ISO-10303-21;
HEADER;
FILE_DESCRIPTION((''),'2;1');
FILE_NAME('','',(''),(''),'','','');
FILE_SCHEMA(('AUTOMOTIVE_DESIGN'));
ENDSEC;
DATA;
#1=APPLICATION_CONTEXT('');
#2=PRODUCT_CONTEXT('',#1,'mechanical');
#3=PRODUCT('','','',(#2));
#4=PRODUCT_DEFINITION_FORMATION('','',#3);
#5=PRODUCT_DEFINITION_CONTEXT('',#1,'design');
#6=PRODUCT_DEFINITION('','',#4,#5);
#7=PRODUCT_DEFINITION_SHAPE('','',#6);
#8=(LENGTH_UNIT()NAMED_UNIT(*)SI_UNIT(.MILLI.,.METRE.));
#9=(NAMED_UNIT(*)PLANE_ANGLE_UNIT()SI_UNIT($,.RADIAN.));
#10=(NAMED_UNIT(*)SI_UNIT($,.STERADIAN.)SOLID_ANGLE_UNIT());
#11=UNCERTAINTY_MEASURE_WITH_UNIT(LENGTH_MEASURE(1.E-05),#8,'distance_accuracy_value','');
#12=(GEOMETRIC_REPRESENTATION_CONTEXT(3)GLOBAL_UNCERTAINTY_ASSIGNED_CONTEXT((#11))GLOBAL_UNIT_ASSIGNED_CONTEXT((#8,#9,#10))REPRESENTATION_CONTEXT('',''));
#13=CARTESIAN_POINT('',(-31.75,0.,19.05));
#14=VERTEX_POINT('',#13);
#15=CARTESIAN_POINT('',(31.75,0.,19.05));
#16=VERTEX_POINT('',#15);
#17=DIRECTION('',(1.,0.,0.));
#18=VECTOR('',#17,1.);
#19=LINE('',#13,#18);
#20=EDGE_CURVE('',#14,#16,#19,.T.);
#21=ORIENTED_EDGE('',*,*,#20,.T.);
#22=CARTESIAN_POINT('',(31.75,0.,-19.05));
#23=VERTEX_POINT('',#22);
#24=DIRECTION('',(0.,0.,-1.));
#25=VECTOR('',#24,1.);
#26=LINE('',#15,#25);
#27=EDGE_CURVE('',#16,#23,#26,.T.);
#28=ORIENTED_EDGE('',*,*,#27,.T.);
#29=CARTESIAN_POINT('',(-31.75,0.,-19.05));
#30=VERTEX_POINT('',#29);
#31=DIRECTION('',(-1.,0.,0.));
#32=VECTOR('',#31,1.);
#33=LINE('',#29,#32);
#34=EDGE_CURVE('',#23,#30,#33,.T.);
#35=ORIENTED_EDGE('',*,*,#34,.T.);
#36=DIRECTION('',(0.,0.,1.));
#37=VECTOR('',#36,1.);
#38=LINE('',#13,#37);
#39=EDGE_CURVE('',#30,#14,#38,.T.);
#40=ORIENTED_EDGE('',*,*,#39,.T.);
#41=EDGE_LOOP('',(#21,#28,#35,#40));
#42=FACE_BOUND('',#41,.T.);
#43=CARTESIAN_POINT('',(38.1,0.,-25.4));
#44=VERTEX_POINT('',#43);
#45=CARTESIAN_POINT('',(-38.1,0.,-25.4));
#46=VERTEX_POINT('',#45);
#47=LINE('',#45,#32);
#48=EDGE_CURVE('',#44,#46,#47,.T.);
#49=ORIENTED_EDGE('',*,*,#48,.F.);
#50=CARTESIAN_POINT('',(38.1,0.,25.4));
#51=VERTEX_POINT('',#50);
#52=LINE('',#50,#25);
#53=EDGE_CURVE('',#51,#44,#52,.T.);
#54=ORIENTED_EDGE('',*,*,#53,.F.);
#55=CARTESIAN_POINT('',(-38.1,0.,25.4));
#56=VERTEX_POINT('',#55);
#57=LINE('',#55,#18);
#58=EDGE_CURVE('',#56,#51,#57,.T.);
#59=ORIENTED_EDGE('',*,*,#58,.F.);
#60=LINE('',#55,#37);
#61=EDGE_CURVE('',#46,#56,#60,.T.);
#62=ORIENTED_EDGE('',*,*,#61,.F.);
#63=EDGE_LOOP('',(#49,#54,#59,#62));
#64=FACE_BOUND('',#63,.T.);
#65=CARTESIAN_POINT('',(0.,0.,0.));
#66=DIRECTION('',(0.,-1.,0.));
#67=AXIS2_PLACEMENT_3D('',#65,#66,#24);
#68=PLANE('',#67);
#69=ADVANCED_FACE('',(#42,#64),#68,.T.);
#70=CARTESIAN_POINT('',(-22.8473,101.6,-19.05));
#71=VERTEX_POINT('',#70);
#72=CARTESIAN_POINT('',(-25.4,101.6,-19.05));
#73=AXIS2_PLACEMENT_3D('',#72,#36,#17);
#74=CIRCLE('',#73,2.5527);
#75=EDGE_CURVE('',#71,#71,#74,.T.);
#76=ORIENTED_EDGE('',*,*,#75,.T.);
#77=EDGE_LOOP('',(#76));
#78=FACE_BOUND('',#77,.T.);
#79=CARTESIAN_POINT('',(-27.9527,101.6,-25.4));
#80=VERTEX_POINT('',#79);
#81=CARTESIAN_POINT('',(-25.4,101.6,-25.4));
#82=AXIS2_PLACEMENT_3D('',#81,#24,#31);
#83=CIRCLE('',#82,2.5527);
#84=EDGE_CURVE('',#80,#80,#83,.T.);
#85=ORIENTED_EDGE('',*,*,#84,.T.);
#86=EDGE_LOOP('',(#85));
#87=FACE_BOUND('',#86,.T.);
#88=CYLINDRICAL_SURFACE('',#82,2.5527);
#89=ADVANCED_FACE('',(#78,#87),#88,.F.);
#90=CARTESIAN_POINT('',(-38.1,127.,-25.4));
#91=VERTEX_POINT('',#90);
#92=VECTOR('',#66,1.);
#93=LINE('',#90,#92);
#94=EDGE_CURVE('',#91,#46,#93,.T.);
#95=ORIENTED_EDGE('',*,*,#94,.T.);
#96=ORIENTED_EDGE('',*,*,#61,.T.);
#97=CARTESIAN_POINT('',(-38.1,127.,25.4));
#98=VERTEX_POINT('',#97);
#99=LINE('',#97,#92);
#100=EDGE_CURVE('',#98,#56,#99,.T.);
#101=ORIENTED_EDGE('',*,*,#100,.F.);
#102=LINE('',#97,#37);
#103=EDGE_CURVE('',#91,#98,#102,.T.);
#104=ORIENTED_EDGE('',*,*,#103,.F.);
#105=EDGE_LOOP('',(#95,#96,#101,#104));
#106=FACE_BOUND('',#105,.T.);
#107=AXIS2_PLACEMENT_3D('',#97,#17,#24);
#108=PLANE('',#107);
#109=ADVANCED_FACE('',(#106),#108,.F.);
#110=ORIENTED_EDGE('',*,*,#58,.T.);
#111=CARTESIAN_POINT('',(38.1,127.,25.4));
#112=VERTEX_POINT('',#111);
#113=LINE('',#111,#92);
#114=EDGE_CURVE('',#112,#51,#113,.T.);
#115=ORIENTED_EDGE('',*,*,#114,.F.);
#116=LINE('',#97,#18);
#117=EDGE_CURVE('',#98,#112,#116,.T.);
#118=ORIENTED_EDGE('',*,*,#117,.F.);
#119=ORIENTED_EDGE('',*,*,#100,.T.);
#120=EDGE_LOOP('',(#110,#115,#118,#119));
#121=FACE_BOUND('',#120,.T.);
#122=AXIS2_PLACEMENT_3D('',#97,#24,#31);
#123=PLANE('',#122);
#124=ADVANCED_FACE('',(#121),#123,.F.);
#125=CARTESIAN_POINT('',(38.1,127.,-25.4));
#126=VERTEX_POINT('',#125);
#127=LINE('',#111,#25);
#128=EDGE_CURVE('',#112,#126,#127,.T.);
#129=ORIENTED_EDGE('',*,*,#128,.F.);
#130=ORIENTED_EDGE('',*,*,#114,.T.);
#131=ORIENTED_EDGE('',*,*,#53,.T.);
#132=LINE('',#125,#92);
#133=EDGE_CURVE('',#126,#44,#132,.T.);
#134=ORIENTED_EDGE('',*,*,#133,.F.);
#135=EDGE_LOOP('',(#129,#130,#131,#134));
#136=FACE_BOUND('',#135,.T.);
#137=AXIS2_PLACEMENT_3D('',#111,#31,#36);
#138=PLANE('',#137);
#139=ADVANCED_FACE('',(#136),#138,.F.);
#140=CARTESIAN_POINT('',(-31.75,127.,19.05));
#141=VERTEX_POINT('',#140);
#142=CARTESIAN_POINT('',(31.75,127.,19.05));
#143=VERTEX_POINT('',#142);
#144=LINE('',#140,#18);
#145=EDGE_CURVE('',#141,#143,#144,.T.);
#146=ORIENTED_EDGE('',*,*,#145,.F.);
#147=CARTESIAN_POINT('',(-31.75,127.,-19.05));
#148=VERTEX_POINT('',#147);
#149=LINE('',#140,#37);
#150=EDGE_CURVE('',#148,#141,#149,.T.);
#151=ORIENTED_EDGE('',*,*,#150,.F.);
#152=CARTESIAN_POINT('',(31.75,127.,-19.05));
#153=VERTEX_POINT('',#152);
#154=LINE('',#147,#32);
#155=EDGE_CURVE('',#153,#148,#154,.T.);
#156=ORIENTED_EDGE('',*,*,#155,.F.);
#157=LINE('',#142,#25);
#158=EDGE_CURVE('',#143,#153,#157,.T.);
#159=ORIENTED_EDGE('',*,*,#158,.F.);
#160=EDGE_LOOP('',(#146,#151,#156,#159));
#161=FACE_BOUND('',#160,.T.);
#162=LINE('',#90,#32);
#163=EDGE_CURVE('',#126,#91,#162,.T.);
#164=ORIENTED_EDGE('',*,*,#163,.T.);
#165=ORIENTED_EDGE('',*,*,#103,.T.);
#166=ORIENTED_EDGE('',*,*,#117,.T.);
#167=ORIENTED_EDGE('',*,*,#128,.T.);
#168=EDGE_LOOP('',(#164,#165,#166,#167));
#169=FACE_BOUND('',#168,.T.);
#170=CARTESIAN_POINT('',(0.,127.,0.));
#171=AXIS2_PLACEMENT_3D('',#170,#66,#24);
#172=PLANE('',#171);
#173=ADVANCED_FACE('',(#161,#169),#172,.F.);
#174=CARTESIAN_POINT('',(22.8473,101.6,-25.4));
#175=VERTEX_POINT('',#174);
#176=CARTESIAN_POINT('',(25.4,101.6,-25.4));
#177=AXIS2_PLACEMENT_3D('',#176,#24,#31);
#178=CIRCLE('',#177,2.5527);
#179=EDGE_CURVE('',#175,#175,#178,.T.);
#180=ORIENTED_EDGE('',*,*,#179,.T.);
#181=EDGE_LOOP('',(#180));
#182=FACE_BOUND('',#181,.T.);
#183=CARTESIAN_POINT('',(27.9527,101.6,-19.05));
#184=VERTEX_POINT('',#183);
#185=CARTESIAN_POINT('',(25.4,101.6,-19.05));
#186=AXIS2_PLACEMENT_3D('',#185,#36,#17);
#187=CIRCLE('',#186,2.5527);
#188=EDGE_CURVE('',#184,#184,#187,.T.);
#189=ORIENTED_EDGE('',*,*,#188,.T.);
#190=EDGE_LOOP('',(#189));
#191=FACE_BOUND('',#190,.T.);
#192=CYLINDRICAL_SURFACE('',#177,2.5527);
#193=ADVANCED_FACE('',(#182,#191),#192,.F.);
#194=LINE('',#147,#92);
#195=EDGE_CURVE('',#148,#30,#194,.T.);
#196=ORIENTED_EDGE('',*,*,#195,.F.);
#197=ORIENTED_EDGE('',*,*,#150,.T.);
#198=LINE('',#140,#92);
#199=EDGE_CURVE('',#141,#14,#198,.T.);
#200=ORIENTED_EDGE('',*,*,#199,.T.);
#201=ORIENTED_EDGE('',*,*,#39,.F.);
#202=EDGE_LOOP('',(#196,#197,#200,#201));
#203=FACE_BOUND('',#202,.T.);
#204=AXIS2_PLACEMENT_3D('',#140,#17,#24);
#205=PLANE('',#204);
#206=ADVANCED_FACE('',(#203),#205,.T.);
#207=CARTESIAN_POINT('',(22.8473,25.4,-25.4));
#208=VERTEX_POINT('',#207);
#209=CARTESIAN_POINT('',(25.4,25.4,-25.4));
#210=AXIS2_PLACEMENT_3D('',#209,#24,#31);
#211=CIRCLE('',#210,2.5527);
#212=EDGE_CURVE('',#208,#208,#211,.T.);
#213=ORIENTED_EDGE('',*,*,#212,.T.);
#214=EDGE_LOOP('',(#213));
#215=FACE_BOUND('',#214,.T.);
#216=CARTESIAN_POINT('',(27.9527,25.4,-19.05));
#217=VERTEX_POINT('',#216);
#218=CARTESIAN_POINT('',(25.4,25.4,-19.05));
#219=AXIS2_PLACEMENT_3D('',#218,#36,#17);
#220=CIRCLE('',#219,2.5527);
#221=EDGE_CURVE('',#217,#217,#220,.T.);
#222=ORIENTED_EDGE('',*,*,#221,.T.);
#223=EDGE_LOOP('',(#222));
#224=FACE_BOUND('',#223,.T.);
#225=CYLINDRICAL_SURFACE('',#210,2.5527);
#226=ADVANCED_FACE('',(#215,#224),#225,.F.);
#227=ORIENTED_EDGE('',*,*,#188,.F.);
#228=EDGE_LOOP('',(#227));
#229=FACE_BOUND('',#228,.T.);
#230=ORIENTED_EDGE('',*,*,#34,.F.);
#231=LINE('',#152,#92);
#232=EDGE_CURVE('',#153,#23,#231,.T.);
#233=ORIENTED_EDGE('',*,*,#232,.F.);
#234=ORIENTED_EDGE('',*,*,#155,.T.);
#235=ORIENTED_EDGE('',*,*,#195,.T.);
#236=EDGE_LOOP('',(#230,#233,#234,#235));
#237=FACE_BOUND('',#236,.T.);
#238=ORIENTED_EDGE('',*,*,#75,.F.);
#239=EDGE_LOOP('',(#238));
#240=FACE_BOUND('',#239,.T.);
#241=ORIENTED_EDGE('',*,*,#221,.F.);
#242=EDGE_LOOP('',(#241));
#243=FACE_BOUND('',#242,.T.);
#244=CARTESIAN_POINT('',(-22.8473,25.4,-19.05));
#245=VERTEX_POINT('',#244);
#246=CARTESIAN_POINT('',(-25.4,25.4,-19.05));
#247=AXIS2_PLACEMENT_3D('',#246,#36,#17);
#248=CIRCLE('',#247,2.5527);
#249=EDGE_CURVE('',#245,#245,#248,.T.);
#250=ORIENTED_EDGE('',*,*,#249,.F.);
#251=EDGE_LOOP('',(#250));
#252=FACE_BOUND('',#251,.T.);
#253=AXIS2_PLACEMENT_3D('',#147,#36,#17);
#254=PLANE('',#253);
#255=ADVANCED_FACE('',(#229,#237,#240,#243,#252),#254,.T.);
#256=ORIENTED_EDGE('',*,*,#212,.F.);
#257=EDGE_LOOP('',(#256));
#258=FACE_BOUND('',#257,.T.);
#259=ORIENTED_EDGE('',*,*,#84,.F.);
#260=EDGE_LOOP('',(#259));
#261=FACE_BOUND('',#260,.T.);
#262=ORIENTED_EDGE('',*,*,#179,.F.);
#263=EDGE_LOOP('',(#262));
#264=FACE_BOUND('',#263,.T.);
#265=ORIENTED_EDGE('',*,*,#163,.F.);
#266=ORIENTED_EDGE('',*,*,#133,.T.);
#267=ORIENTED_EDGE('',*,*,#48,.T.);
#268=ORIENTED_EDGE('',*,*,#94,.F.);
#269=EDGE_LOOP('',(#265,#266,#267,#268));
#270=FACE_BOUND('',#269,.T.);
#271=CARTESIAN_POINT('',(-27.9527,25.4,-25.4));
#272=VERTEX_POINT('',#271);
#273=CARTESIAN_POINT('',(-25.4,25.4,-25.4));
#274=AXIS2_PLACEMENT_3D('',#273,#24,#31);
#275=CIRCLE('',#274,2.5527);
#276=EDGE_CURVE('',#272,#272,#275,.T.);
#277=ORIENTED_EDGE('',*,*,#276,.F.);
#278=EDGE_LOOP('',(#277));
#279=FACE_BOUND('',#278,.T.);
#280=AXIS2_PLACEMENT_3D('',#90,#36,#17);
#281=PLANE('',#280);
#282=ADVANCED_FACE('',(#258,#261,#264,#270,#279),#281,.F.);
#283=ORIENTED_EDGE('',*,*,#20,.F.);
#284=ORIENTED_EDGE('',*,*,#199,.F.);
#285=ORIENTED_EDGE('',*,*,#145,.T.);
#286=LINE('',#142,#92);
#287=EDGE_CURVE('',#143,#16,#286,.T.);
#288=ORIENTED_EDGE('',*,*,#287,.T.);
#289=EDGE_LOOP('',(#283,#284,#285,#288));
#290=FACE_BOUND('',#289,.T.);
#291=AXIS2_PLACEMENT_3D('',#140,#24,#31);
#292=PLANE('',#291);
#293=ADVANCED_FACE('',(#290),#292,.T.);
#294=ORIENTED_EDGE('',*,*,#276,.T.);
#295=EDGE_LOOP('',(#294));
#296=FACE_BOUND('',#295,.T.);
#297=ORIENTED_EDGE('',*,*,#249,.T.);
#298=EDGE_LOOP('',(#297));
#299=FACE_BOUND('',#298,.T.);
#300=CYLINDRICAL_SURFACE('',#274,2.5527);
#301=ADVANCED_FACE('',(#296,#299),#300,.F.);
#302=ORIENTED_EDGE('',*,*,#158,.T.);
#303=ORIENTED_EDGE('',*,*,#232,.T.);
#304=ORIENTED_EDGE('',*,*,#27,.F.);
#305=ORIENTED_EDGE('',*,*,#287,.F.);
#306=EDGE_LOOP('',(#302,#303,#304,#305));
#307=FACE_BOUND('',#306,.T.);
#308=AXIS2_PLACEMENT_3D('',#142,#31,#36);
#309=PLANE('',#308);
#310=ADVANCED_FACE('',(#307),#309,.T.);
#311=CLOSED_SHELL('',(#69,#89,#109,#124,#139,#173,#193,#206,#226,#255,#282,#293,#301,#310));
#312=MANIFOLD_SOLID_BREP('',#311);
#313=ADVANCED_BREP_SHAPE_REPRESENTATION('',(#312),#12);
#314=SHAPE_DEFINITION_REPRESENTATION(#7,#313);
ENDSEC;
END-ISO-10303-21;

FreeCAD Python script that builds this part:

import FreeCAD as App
import Part
import Sketcher
Q = App.Units.Quantity


def add_polygon(sketch, points):
    """Adds a closed chain of lines whose ends are joined by coincident constraints."""
    first, n = sketch.GeometryCount, len(points)
    for a, b in zip(points, points[1:] + points[:1]):
        sketch.addGeometry(Part.LineSegment(App.Vector(*a, 0), App.Vector(*b, 0)), False)
    for i in range(n):
        sketch.addConstraint(Sketcher.Constraint("Coincident", first + i, 2, first + (i + 1) % n, 1))

doc = App.newDocument("Part")
params = doc.addObject("Spreadsheet::Sheet", "Params")
for row, (alias, value) in enumerate([
    ("sketch1_width", "3 in"),
    ("sketch1_height", "2 in"),
    ("sketch1_width2", "2.5 in"),
    ("sketch1_height2", "1.5 in"),
    ("pad1_length", "5 in"),
    ("sketch2_diameter", "0.201 in"),
    ("hole_diameter", "0.201 in"),
    ("hole_depth", "0.25 in"),
], start=1):
    params.set(f"A{row}", alias)
    params.set(f"B{row}", "=" + value)
    params.setAlias(f"B{row}", alias)

body = doc.addObject("PartDesign::Body", "Body")

sketch1 = body.newObject("Sketcher::SketchObject", "Sketch")
sketch1.AttachmentSupport = (doc.getObject("XZ_Plane"), [""])
sketch1.MapMode = "FlatFace"
add_polygon(sketch1, [(-38, -25), (-38, 25), (38, 25), (38, -25)])
add_polygon(sketch1, [(32, 19), (-32, 19), (-32, -19), (32, -19)])
sketch1.addConstraint([
    Sketcher.Constraint("Vertical", 0),
    Sketcher.Constraint("Horizontal", 1),
    Sketcher.Constraint("Vertical", 2),
    Sketcher.Constraint("Horizontal", 3),
    Sketcher.Constraint("Horizontal", 4),
    Sketcher.Constraint("Vertical", 5),
    Sketcher.Constraint("Horizontal", 6),
    Sketcher.Constraint("Vertical", 7),
    Sketcher.Constraint("Symmetric", 0, 2, 2, 2, -1, 1),
    Sketcher.Constraint("Symmetric", 4, 2, 6, 2, -1, 1),
    Sketcher.Constraint("DistanceX", 1, 1, 1, 2, Q("3 in")),
    Sketcher.Constraint("DistanceY", 0, 1, 0, 2, Q("2 in")),
    Sketcher.Constraint("DistanceX", 4, 2, 4, 1, Q("2.5 in")),
    Sketcher.Constraint("DistanceY", 5, 2, 5, 1, Q("1.5 in")),
])
sketch1.setExpression("Constraints[18]", "Params.sketch1_width")
sketch1.setExpression("Constraints[19]", "Params.sketch1_height")
sketch1.setExpression("Constraints[20]", "Params.sketch1_width2")
sketch1.setExpression("Constraints[21]", "Params.sketch1_height2")
pad1 = body.newObject("PartDesign::Pad", "Pad")
pad1.Profile = sketch1
pad1.setExpression("Length", "Params.pad1_length")
pad1.Reversed = True

sketch2 = body.newObject("Sketcher::SketchObject", "Sketch001")
sketch2.AttachmentSupport = (doc.getObject("XY_Plane"), [""])
sketch2.MapMode = "FlatFace"
sketch2.AttachmentOffset = App.Placement(App.Vector(0, 0, -1 * 25.4), App.Rotation())
sketch2.addGeometry([
    Part.Circle(App.Vector(25.4, 101.6, 0), App.Vector(0, 0, 1), 2.6),
    Part.Circle(App.Vector(25.4, 25.4, 0), App.Vector(0, 0, 1), 2.6),
    Part.Circle(App.Vector(-25.4, 25.4, 0), App.Vector(0, 0, 1), 2.6),
    Part.Circle(App.Vector(-25.4, 101.6, 0), App.Vector(0, 0, 1), 2.6),
], False)
sketch2.addConstraint([
    Sketcher.Constraint("Equal", 0, 1),
    Sketcher.Constraint("Equal", 1, 2),
    Sketcher.Constraint("Equal", 2, 3),
    Sketcher.Constraint("Symmetric", 1, 3, 2, 3, -2),
    Sketcher.Constraint("Symmetric", 0, 3, 3, 3, -2),
    Sketcher.Constraint("Vertical", 0, 3, 1, 3),
    Sketcher.Constraint("Diameter", 0, Q("0.201 in")),
    Sketcher.Constraint("DistanceX", -1, 1, 0, 3, Q("1 in")),
    Sketcher.Constraint("DistanceY", -1, 1, 0, 3, Q("4 in")),
    Sketcher.Constraint("DistanceY", -1, 1, 1, 3, Q("1 in")),
])
sketch2.setExpression("Constraints[6]", "Params.sketch2_diameter")
doc.recompute()
hole = body.newObject("PartDesign::Hole", "Hole")
hole.Profile = sketch2
hole.ThreadType = "None"
hole.setExpression("Diameter", "Params.hole_diameter")
hole.DepthType = "Dimension"
hole.setExpression("Depth", "Params.hole_depth")
hole.DrillPoint = "Flat"
hole.Reversed = True

doc.recompute()
